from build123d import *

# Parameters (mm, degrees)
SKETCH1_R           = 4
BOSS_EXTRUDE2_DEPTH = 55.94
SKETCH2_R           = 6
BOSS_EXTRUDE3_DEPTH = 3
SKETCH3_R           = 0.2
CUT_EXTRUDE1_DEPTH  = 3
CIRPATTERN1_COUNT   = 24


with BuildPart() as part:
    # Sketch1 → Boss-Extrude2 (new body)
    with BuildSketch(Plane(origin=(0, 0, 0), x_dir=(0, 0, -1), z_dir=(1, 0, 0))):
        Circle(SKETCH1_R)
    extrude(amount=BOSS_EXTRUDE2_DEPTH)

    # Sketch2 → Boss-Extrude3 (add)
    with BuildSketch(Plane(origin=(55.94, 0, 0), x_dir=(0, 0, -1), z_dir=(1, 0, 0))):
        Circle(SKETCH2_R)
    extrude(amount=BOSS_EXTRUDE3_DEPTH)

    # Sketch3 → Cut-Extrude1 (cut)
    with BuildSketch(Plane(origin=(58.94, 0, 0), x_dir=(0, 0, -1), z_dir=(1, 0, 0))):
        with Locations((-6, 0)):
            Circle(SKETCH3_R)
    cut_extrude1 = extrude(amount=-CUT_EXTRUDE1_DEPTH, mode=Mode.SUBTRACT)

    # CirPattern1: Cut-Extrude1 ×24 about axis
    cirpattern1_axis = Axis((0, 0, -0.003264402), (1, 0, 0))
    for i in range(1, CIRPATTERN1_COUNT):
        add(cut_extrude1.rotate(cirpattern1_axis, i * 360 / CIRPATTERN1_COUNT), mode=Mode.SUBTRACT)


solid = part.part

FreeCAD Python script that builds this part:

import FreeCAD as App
import Part
import Sketcher
from FreeCAD import Vector
Q = App.Units.Quantity

doc = App.newDocument("Part")
body = doc.addObject("PartDesign::Body", "Body")

# Sketch on YZ plane
sketch1 = body.newObject("Sketcher::SketchObject", "Sketch")
sketch1.AttachmentSupport = (doc.getObject("YZ_Plane"), [""])
sketch1.MapMode = "FlatFace"
sketch1.addGeometry(Part.Circle(Vector(0, 0, 0), Vector(0, 0, 1), 4), False)
sketch1.addConstraint([
    Sketcher.Constraint("Coincident", 0, 3, -1, 1),
    Sketcher.Constraint("Diameter", 0, Q("8 mm")),
])
pad1 = body.newObject("PartDesign::Pad", "Pad")
pad1.Profile = sketch1
pad1.Length = 55.94

# Sketch on YZ plane
sketch2 = body.newObject("Sketcher::SketchObject", "Sketch001")
sketch2.AttachmentSupport = (doc.getObject("YZ_Plane"), [""])
sketch2.MapMode = "FlatFace"
sketch2.AttachmentOffset = App.Placement(Vector(0, 0, 55.94), App.Rotation())
sketch2.addGeometry(Part.Circle(Vector(0, 0, 0), Vector(0, 0, 1), 6), False)
sketch2.addConstraint([
    Sketcher.Constraint("Coincident", 0, 3, -1, 1),
    Sketcher.Constraint("Diameter", 0, Q("12 mm")),
])
pad2 = body.newObject("PartDesign::Pad", "Pad001")
pad2.Profile = sketch2
pad2.Length = 3

# Sketch on YZ plane
sketch3 = body.newObject("Sketcher::SketchObject", "Sketch002")
sketch3.AttachmentSupport = (doc.getObject("YZ_Plane"), [""])
sketch3.MapMode = "FlatFace"
sketch3.AttachmentOffset = App.Placement(Vector(0, 0, 58.94), App.Rotation())
sketch3.addGeometry(Part.Circle(Vector(0, 6, 0), Vector(0, 0, 1), 0.2), False)
sketch3.addConstraint([
    Sketcher.Constraint("PointOnObject", 0, 3, -2),
    Sketcher.Constraint("Diameter", 0, Q("0.4 mm")),
    Sketcher.Constraint("DistanceY", -1, 1, 0, 3, Q("6 mm")),
])
pocket1 = body.newObject("PartDesign::Pocket", "Pocket")
pocket1.Profile = sketch3
pocket1.Length = 3
doc.recompute()

datumline = body.newObject("PartDesign::Line", "DatumLine")
datumline.Placement = App.Placement(Vector(0, 0, -0.003264), App.Rotation(Vector(0, 0, 1), Vector(1, 0, 0)))
polarpattern = body.newObject("PartDesign::PolarPattern", "PolarPattern")
polarpattern.Originals = [pocket1]
polarpattern.Axis = (datumline, [""])
polarpattern.Angle = 360
polarpattern.Occurrences = 24
body.Tip = polarpattern

doc.recompute()
